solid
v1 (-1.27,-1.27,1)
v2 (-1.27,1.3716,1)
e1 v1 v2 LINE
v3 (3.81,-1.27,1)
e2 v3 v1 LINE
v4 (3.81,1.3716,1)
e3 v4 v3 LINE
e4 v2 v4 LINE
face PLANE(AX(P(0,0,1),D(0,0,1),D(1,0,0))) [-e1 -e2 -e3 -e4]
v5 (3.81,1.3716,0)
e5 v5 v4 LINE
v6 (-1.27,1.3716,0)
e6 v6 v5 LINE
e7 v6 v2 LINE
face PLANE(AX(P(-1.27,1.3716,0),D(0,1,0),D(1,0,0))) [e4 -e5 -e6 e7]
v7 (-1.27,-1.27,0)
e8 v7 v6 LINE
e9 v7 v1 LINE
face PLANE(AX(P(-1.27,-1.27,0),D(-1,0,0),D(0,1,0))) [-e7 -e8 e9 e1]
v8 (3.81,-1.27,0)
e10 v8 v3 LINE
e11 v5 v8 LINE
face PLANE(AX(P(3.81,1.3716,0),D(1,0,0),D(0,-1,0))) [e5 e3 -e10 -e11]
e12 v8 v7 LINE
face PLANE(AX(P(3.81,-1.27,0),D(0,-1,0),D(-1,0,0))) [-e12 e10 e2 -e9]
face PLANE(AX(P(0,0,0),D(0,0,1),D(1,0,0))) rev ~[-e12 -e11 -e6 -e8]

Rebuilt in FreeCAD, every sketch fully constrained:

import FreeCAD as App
import Part
import Sketcher
from FreeCAD import Vector
Q = App.Units.Quantity


def add_polygon(sketch, points):
    """Adds a closed chain of lines whose ends are joined by coincident constraints."""
    first, n = sketch.GeometryCount, len(points)
    for a, b in zip(points, points[1:] + points[:1]):
        sketch.addGeometry(Part.LineSegment(App.Vector(*a, 0), App.Vector(*b, 0)), False)
    for i in range(n):
        sketch.addConstraint(Sketcher.Constraint("Coincident", first + i, 2, first + (i + 1) % n, 1))

doc = App.newDocument("Part")
body = doc.addObject("PartDesign::Body", "Body")

# Sketch on XY plane
sketch1 = body.newObject("Sketcher::SketchObject", "Sketch")
sketch1.AttachmentSupport = (doc.getObject("XY_Plane"), [""])
sketch1.MapMode = "FlatFace"
add_polygon(sketch1, [(3.8, 1.4), (-1.3, 1.4), (-1.3, -1.3), (3.8, -1.3)])  # lines 0-3
sketch1.addConstraint(Sketcher.Constraint("Horizontal", 0))
sketch1.addConstraint(Sketcher.Constraint("Vertical", 1))
sketch1.addConstraint(Sketcher.Constraint("Horizontal", 2))
sketch1.addConstraint(Sketcher.Constraint("Vertical", 3))
sketch1.addConstraint(Sketcher.Constraint("DistanceX", 0, 2, 0, 1, Q("0.2 in")))
sketch1.addConstraint(Sketcher.Constraint("DistanceY", 1, 2, 1, 1, Q("0.104 in")))
sketch1.addConstraint(Sketcher.Constraint("DistanceX", 0, 2, -1, 1, Q("0.05 in")))
sketch1.addConstraint(Sketcher.Constraint("DistanceY", 1, 2, -1, 1, Q("0.05 in")))
pad1 = body.newObject("PartDesign::Pad", "Pad")
pad1.Profile = sketch1
pad1.Length = 1

doc.recompute()
